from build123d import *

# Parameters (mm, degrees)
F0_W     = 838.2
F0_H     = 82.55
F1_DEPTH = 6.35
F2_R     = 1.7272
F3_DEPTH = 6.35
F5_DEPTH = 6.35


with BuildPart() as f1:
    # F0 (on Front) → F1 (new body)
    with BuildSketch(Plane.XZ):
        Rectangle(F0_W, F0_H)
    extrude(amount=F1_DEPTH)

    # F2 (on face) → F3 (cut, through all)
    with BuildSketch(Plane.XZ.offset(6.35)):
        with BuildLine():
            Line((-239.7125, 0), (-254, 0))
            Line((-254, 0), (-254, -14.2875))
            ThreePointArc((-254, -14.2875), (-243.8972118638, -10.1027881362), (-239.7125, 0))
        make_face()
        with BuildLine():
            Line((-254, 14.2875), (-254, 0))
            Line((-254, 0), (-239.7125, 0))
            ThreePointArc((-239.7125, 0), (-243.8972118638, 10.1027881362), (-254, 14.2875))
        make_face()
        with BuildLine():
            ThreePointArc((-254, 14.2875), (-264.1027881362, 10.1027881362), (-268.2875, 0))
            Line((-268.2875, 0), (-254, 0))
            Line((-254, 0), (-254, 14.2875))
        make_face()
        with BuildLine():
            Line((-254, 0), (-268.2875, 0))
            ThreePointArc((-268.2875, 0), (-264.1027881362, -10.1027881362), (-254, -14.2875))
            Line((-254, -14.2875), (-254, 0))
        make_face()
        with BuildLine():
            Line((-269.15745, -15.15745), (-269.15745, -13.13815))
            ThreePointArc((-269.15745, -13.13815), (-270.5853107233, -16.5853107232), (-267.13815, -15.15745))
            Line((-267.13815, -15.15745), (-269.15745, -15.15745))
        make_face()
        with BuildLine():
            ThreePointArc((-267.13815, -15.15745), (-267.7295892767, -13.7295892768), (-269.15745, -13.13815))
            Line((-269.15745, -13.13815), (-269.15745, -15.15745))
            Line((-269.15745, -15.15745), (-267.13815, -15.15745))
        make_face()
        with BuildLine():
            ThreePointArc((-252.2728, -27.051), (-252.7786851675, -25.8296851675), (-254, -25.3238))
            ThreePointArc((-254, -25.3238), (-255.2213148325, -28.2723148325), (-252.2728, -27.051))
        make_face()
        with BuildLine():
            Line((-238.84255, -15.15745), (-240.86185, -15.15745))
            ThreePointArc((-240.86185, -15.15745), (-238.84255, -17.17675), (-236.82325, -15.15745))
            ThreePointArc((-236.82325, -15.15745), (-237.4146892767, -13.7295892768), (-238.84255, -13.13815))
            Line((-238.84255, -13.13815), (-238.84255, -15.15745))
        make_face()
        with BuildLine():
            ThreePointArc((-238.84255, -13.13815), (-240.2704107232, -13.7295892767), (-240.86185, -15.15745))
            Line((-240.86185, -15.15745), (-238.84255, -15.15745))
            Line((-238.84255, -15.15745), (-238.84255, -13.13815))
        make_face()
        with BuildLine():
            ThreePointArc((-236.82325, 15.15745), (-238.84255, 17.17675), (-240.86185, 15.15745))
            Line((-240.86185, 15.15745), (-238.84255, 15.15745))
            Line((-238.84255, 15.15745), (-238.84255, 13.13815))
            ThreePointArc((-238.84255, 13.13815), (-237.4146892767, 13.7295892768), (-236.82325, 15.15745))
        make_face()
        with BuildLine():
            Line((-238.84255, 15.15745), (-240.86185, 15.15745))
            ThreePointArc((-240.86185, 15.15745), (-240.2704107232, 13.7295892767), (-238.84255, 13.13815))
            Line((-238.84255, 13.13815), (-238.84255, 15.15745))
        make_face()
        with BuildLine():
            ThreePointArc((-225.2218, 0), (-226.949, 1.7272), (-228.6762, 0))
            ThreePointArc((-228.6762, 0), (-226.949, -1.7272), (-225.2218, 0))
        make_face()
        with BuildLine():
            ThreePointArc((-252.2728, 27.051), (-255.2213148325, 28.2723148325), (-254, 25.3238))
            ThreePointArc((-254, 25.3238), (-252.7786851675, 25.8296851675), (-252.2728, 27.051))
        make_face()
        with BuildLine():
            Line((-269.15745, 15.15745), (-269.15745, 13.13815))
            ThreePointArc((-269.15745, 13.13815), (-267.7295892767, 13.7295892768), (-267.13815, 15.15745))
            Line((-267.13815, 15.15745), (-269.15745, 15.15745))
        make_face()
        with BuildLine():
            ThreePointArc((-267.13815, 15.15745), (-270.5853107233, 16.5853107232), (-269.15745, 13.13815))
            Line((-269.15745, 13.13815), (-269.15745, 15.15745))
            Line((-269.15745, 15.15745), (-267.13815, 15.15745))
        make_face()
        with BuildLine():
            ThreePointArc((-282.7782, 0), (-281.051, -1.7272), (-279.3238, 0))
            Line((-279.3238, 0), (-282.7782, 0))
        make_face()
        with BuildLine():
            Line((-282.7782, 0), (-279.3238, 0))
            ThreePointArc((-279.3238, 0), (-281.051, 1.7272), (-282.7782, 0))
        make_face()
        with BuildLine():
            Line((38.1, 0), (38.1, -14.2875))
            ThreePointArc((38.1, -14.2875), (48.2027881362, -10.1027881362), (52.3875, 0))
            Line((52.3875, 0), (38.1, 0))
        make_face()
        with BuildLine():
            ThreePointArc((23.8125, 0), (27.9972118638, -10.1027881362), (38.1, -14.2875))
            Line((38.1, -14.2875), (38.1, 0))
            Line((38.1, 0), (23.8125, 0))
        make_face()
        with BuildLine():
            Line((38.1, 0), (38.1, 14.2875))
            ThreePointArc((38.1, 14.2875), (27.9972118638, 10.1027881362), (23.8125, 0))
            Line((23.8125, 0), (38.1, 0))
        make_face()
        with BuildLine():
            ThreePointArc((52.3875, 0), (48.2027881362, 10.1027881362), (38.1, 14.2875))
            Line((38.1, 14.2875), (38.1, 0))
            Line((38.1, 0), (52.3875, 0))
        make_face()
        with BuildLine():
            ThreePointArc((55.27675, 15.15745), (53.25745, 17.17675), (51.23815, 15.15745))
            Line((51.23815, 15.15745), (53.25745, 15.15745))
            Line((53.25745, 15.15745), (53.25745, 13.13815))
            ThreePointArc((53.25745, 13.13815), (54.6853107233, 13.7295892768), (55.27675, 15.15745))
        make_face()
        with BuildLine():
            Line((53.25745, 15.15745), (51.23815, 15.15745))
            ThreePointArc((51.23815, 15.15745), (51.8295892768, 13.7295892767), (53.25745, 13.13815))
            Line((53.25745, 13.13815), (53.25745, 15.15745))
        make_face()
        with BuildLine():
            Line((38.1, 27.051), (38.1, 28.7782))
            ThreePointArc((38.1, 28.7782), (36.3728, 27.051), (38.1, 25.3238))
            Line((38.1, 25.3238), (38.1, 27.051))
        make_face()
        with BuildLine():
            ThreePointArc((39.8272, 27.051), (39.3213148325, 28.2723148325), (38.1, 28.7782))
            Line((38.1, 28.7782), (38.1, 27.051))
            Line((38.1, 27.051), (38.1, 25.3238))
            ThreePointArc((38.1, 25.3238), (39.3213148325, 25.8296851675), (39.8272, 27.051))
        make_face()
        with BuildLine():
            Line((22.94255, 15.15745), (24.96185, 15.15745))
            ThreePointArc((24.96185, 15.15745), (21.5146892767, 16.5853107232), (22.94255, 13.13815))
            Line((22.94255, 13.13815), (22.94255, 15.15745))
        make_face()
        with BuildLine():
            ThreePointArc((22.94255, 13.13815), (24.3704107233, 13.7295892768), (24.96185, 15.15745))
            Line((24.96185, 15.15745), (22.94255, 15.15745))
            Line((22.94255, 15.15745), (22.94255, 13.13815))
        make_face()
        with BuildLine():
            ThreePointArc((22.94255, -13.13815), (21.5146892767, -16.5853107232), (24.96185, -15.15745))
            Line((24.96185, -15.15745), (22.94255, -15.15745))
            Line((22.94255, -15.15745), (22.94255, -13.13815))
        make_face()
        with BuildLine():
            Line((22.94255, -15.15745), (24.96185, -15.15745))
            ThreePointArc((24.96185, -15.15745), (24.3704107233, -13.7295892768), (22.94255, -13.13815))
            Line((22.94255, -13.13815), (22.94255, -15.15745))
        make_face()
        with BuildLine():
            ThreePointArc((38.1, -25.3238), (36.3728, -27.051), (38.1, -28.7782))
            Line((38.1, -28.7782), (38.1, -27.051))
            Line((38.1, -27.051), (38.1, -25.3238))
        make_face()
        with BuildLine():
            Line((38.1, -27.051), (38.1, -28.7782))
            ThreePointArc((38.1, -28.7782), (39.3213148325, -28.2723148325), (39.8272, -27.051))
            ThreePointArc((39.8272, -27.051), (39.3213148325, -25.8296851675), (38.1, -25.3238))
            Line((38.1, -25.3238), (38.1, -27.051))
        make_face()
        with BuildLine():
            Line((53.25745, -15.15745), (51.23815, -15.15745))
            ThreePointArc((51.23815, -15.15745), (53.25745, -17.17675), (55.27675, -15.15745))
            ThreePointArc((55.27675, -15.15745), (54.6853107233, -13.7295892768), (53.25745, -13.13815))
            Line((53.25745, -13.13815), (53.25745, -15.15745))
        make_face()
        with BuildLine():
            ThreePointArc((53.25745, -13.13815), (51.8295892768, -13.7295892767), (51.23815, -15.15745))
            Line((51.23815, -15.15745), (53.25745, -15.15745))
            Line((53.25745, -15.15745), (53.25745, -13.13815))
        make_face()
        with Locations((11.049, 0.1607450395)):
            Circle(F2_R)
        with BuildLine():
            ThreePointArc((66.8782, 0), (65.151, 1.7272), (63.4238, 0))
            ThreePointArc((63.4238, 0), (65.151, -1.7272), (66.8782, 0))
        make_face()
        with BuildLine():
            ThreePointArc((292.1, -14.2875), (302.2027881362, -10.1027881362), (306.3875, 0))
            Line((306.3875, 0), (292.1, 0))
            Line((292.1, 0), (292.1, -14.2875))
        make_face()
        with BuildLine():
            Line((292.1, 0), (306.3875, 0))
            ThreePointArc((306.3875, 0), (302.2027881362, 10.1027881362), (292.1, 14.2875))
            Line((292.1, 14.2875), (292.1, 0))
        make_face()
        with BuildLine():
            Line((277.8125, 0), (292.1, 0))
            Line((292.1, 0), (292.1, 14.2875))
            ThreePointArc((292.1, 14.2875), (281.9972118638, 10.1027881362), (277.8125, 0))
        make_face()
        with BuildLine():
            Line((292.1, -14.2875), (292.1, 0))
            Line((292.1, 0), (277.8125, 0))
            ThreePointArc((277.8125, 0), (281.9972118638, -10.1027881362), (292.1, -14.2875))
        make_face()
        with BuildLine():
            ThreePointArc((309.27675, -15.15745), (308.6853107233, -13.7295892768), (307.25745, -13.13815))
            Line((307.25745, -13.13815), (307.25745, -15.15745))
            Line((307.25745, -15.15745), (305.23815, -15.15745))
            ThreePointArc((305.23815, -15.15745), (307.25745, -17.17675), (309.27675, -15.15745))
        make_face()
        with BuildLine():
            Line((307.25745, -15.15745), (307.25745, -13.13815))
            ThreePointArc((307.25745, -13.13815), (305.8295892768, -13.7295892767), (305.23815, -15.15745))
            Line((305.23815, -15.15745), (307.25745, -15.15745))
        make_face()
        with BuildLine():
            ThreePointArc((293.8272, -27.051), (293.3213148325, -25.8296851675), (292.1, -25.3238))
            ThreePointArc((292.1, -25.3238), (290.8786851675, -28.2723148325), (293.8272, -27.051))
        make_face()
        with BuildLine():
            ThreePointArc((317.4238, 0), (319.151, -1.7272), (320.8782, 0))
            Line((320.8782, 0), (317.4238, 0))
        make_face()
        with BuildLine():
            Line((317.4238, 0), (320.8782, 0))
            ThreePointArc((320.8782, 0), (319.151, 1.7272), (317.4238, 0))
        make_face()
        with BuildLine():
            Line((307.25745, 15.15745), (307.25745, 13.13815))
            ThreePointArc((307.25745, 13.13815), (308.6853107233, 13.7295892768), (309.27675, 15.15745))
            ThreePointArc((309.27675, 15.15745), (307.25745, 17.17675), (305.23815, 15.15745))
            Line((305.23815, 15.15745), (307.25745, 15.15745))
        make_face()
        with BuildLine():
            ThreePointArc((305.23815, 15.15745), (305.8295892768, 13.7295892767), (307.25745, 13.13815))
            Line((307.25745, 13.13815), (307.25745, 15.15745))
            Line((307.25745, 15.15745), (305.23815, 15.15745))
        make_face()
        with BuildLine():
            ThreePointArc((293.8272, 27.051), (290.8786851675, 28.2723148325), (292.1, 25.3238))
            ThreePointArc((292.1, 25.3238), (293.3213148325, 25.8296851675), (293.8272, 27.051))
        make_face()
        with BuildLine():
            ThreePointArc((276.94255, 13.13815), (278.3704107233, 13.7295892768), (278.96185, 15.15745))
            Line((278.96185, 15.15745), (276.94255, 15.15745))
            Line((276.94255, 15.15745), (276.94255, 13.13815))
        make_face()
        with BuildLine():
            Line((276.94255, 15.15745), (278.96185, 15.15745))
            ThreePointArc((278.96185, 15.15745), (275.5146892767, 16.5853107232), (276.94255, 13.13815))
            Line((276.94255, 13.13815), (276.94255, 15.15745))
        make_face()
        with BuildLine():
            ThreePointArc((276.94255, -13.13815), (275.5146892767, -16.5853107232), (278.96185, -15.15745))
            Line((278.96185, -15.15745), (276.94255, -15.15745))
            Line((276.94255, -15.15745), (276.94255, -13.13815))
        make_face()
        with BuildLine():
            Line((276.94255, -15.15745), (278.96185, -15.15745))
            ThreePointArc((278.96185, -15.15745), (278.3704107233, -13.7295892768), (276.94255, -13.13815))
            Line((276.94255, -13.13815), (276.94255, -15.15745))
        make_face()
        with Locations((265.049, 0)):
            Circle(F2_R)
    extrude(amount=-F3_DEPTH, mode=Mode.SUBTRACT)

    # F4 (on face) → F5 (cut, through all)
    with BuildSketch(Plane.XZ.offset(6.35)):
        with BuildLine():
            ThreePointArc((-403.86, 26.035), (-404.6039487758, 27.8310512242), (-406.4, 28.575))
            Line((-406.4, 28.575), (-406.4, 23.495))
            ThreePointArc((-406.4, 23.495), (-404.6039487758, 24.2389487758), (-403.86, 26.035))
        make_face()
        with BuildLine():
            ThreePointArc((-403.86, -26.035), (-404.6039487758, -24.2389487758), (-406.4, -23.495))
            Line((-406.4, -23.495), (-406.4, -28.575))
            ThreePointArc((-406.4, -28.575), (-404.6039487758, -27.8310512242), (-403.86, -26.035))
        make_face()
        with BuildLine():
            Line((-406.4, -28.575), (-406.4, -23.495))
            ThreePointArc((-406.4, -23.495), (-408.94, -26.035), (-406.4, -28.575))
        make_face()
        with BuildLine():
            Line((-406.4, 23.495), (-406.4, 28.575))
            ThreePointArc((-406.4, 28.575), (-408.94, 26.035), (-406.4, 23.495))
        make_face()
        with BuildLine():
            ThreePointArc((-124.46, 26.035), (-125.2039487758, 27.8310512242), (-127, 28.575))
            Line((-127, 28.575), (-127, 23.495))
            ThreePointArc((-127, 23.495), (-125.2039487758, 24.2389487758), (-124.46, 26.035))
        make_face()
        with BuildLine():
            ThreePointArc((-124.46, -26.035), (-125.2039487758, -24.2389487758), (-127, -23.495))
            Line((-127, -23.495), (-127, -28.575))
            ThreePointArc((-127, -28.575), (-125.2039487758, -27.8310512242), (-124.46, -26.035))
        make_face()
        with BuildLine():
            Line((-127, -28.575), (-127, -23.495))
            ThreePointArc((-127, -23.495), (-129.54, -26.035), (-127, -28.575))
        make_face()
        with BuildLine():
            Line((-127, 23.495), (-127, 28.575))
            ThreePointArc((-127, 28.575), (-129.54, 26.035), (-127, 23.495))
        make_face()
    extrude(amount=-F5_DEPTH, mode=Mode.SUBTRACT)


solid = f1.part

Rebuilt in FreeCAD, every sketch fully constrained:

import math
import FreeCAD as App
import Part
import Sketcher
Q = App.Units.Quantity

doc = App.newDocument("Part")
body = doc.addObject("PartDesign::Body", "Body")

sketch1 = body.newObject("Sketcher::SketchObject", "Sketch")
sketch1.AttachmentSupport = (doc.getObject("XZ_Plane"), [""])
sketch1.MapMode = "FlatFace"
sketch1.addGeometry([
    Part.LineSegment(App.Vector(-419, 41, 0), App.Vector(-419, -41, 0)),
    Part.LineSegment(App.Vector(-419, -41, 0), App.Vector(419, -41, 0)),
    Part.LineSegment(App.Vector(419, -41, 0), App.Vector(419, 41, 0)),
    Part.LineSegment(App.Vector(419, 41, 0), App.Vector(-419, 41, 0)),
], False)
sketch1.addConstraint([
    Sketcher.Constraint("Coincident", 0, 2, 1, 1),
    Sketcher.Constraint("Coincident", 1, 2, 2, 1),
    Sketcher.Constraint("Coincident", 2, 2, 3, 1),
    Sketcher.Constraint("Coincident", 3, 2, 0, 1),
    Sketcher.Constraint("Vertical", 0),
    Sketcher.Constraint("Horizontal", 1),
    Sketcher.Constraint("Vertical", 2),
    Sketcher.Constraint("Horizontal", 3),
    Sketcher.Constraint("Symmetric", 0, 2, 2, 2, -1, 1),
    Sketcher.Constraint("DistanceX", 1, 1, 1, 2, Q("33 in")),
    Sketcher.Constraint("DistanceY", 0, 2, 0, 1, Q("3.25 in")),
])
pad1 = body.newObject("PartDesign::Pad", "Pad")
pad1.Profile = sketch1
pad1.Length = Q("0.25 in")

sketch2 = body.newObject("Sketcher::SketchObject", "Sketch001")
sketch2.AttachmentSupport = (doc.getObject("XZ_Plane"), [""])
sketch2.MapMode = "FlatFace"
sketch2.AttachmentOffset = App.Placement(App.Vector(0, 0, 0.25 * 25.4), App.Rotation())
sketch2.addGeometry([
    Part.ArcOfCircle(Part.Circle(App.Vector(-254, 0, 0), App.Vector(0, 0, 1), 14.3), math.radians(-90), math.radians(0)),
    Part.ArcOfCircle(Part.Circle(App.Vector(-254, 0, 0), App.Vector(0, 0, 1), 14.3), math.radians(0), math.radians(90)),
    Part.ArcOfCircle(Part.Circle(App.Vector(-254, 0, 0), App.Vector(0, 0, 1), 14.3), math.radians(90), math.radians(180)),
    Part.ArcOfCircle(Part.Circle(App.Vector(-254, 0, 0), App.Vector(0, 0, 1), 14.3), math.radians(180), math.radians(270)),
    Part.Circle(App.Vector(-269.2, -15.2, 0), App.Vector(0, 0, 1), 2),
    Part.ArcOfCircle(Part.Circle(App.Vector(-254, -27.1, 0), App.Vector(0, 0, 1), 1.7), math.radians(0), math.radians(90)),
    Part.ArcOfCircle(Part.Circle(App.Vector(-254, -27.1, 0), App.Vector(0, 0, 1), 1.7), math.radians(90), math.radians(360)),
    Part.Circle(App.Vector(-238.8, -15.2, 0), App.Vector(0, 0, 1), 2),
    Part.Circle(App.Vector(-238.8, 15.2, 0), App.Vector(0, 0, 1), 2),
    Part.Circle(App.Vector(-226.9, 0, 0), App.Vector(0, 0, 1), 1.7),
    Part.ArcOfCircle(Part.Circle(App.Vector(-254, 27.1, 0), App.Vector(0, 0, 1), 1.7), math.radians(0), math.radians(270)),
    Part.ArcOfCircle(Part.Circle(App.Vector(-254, 27.1, 0), App.Vector(0, 0, 1), 1.7), math.radians(-90), math.radians(0)),
    Part.Circle(App.Vector(-269.2, 15.2, 0), App.Vector(0, 0, 1), 2),
    Part.Circle(App.Vector(-281.1, 0, 0), App.Vector(0, 0, 1), 1.7),
    Part.ArcOfCircle(Part.Circle(App.Vector(38.1, 0, 0), App.Vector(0, 0, 1), 14.3), math.radians(-90), math.radians(0)),
    Part.ArcOfCircle(Part.Circle(App.Vector(38.1, 0, 0), App.Vector(0, 0, 1), 14.3), math.radians(0), math.radians(90)),
    Part.ArcOfCircle(Part.Circle(App.Vector(38.1, 0, 0), App.Vector(0, 0, 1), 14.3), math.radians(90), math.radians(180)),
    Part.ArcOfCircle(Part.Circle(App.Vector(38.1, 0, 0), App.Vector(0, 0, 1), 14.3), math.radians(180), math.radians(270)),
    Part.Circle(App.Vector(53.3, 15.2, 0), App.Vector(0, 0, 1), 2),
    Part.ArcOfCircle(Part.Circle(App.Vector(38.1, 27.1, 0), App.Vector(0, 0, 1), 1.7), math.radians(90), math.radians(270)),
    Part.ArcOfCircle(Part.Circle(App.Vector(38.1, 27.1, 0), App.Vector(0, 0, 1), 1.7), math.radians(-90), math.radians(0)),
    Part.ArcOfCircle(Part.Circle(App.Vector(38.1, 27.1, 0), App.Vector(0, 0, 1), 1.7), math.radians(0), math.radians(90)),
    Part.Circle(App.Vector(22.9, 15.2, 0), App.Vector(0, 0, 1), 2),
    Part.Circle(App.Vector(22.9, -15.2, 0), App.Vector(0, 0, 1), 2),
    Part.ArcOfCircle(Part.Circle(App.Vector(38.1, -27.1, 0), App.Vector(0, 0, 1), 1.7), math.radians(90), math.radians(270)),
    Part.ArcOfCircle(Part.Circle(App.Vector(38.1, -27.1, 0), App.Vector(0, 0, 1), 1.7), math.radians(-90), math.radians(0)),
    Part.ArcOfCircle(Part.Circle(App.Vector(38.1, -27.1, 0), App.Vector(0, 0, 1), 1.7), math.radians(0), math.radians(90)),
    Part.Circle(App.Vector(53.3, -15.2, 0), App.Vector(0, 0, 1), 2),
    Part.Circle(App.Vector(11, 0.2, 0), App.Vector(0, 0, 1), 1.7),
    Part.Circle(App.Vector(65.2, 0, 0), App.Vector(0, 0, 1), 1.7),
    Part.ArcOfCircle(Part.Circle(App.Vector(292.1, 0, 0), App.Vector(0, 0, 1), 14.3), math.radians(-90), math.radians(0)),
    Part.ArcOfCircle(Part.Circle(App.Vector(292.1, 0, 0), App.Vector(0, 0, 1), 14.3), math.radians(0), math.radians(90)),
    Part.ArcOfCircle(Part.Circle(App.Vector(292.1, 0, 0), App.Vector(0, 0, 1), 14.3), math.radians(90), math.radians(180)),
    Part.ArcOfCircle(Part.Circle(App.Vector(292.1, 0, 0), App.Vector(0, 0, 1), 14.3), math.radians(180), math.radians(270)),
    Part.Circle(App.Vector(307.3, -15.2, 0), App.Vector(0, 0, 1), 2),
    Part.ArcOfCircle(Part.Circle(App.Vector(292.1, -27.1, 0), App.Vector(0, 0, 1), 1.7), math.radians(0), math.radians(90)),
    Part.ArcOfCircle(Part.Circle(App.Vector(292.1, -27.1, 0), App.Vector(0, 0, 1), 1.7), math.radians(90), math.radians(360)),
    Part.Circle(App.Vector(319.2, 0, 0), App.Vector(0, 0, 1), 1.7),
    Part.Circle(App.Vector(307.3, 15.2, 0), App.Vector(0, 0, 1), 2),
    Part.ArcOfCircle(Part.Circle(App.Vector(292.1, 27.1, 0), App.Vector(0, 0, 1), 1.7), math.radians(0), math.radians(270)),
    Part.ArcOfCircle(Part.Circle(App.Vector(292.1, 27.1, 0), App.Vector(0, 0, 1), 1.7), math.radians(-90), math.radians(0)),
    Part.Circle(App.Vector(276.9, 15.2, 0), App.Vector(0, 0, 1), 2),
    Part.Circle(App.Vector(276.9, -15.2, 0), App.Vector(0, 0, 1), 2),
    Part.Circle(App.Vector(265, 0, 0), App.Vector(0, 0, 1), 1.7),
], False)
sketch2.addConstraint([
    Sketcher.Constraint("Tangent", 0, 2, 1, 1),
    Sketcher.Constraint("Tangent", 1, 2, 2, 1),
    Sketcher.Constraint("Tangent", 2, 2, 3, 1),
    Sketcher.Constraint("Tangent", 3, 2, 0, 1),
    Sketcher.Constraint("Tangent", 5, 1, 6, 2),
    Sketcher.Constraint("Coincident", 6, 1, 5, 2),
    Sketcher.Constraint("Tangent", 10, 1, 11, 2),
    Sketcher.Constraint("Coincident", 11, 1, 10, 2),
    Sketcher.Constraint("Tangent", 14, 2, 15, 1),
    Sketcher.Constraint("Tangent", 15, 2, 16, 1),
    Sketcher.Constraint("Tangent", 16, 2, 17, 1),
    Sketcher.Constraint("Tangent", 17, 2, 14, 1),
    Sketcher.Constraint("Tangent", 19, 2, 20, 1),
    Sketcher.Constraint("Tangent", 20, 2, 21, 1),
    Sketcher.Constraint("Tangent", 21, 2, 19, 1),
    Sketcher.Constraint("Tangent", 24, 2, 25, 1),
    Sketcher.Constraint("Tangent", 25, 2, 26, 1),
    Sketcher.Constraint("Tangent", 26, 2, 24, 1),
    Sketcher.Constraint("Tangent", 30, 2, 31, 1),
    Sketcher.Constraint("Tangent", 31, 2, 32, 1),
    Sketcher.Constraint("Tangent", 32, 2, 33, 1),
    Sketcher.Constraint("Tangent", 33, 2, 30, 1),
    Sketcher.Constraint("Tangent", 35, 1, 36, 2),
    Sketcher.Constraint("Coincident", 36, 1, 35, 2),
    Sketcher.Constraint("Tangent", 39, 1, 40, 2),
    Sketcher.Constraint("Coincident", 40, 1, 39, 2),
    Sketcher.Constraint("Equal", 0, 1),
    Sketcher.Constraint("Equal", 4, 7),
    Sketcher.Constraint("Equal", 7, 8),
    Sketcher.Constraint("Equal", 6, 9),
    Sketcher.Constraint("Equal", 9, 10),
    Sketcher.Constraint("Equal", 8, 12),
    Sketcher.Constraint("Equal", 11, 13),
    Sketcher.Constraint("Equal", 3, 14),
    Sketcher.Constraint("Equal", 14, 15),
    Sketcher.Constraint("Equal", 12, 18),
    Sketcher.Constraint("Equal", 13, 19),
    Sketcher.Constraint("Equal", 18, 22),
    Sketcher.Constraint("Equal", 22, 23),
    Sketcher.Constraint("Equal", 21, 24),
    Sketcher.Constraint("Equal", 23, 27),
    Sketcher.Constraint("Equal", 26, 28),
    Sketcher.Constraint("Equal", 28, 29),
    Sketcher.Constraint("Equal", 17, 30),
    Sketcher.Constraint("Equal", 30, 31),
    Sketcher.Constraint("Equal", 27, 34),
    Sketcher.Constraint("Equal", 29, 35),
    Sketcher.Constraint("Equal", 36, 37),
    Sketcher.Constraint("Equal", 34, 38),
    Sketcher.Constraint("Equal", 37, 39),
    Sketcher.Constraint("Equal", 38, 41),
    Sketcher.Constraint("Equal", 41, 42),
    Sketcher.Constraint("Equal", 40, 43),
    Sketcher.Constraint("Symmetric", 7, 3, 8, 3, -1),
    Sketcher.Constraint("Symmetric", 5, 3, 10, 3, -1),
    Sketcher.Constraint("Symmetric", 4, 3, 12, 3, -1),
    Sketcher.Constraint("Symmetric", 22, 3, 23, 3, -1),
    Sketcher.Constraint("Symmetric", 19, 3, 24, 3, -1),
    Sketcher.Constraint("Symmetric", 18, 3, 27, 3, -1),
    Sketcher.Constraint("Symmetric", 34, 3, 38, 3, -1),
    Sketcher.Constraint("Symmetric", 35, 3, 39, 3, -1),
    Sketcher.Constraint("Symmetric", 41, 3, 42, 3, -1),
    Sketcher.Constraint("Symmetric", 1, 2, 3, 2, -1),
    Sketcher.Constraint("Symmetric", 15, 2, 17, 2, -1),
    Sketcher.Constraint("Symmetric", 31, 2, 33, 2, -1),
    Sketcher.Constraint("PointOnObject", 9, 3, -1),
    Sketcher.Constraint("PointOnObject", 13, 3, -1),
    Sketcher.Constraint("PointOnObject", 29, 3, -1),
    Sketcher.Constraint("PointOnObject", 37, 3, -1),
    Sketcher.Constraint("PointOnObject", 43, 3, -1),
    Sketcher.Constraint("PointOnObject", 0, 2, -1),
    Sketcher.Constraint("PointOnObject", 2, 2, -1),
    Sketcher.Constraint("PointOnObject", 14, 2, -1),
    Sketcher.Constraint("PointOnObject", 16, 2, -1),
    Sketcher.Constraint("PointOnObject", 30, 2, -1),
    Sketcher.Constraint("PointOnObject", 32, 2, -1),
    Sketcher.Constraint("Horizontal", 4, 3, 7, 3),
    Sketcher.Constraint("Horizontal", 12, 3, 18, 3),
    Sketcher.Constraint("Horizontal", 11, 3, 19, 3),
    Sketcher.Constraint("Horizontal", 18, 3, 22, 3),
    Sketcher.Constraint("Horizontal", 27, 3, 34, 3),
    Sketcher.Constraint("Horizontal", 26, 3, 35, 3),
    Sketcher.Constraint("Horizontal", 38, 3, 41, 3),
    Sketcher.Constraint("Horizontal", 36, 3, 5, 1),
    Sketcher.Constraint("Horizontal", 40, 3, 10, 1),
    Sketcher.Constraint("Horizontal", 10, 1, 20, 2),
    Sketcher.Constraint("Horizontal", 5, 1, 25, 2),
    Sketcher.Constraint("Horizontal", 25, 2, 35, 1),
    Sketcher.Constraint("Horizontal", 20, 2, 39, 1),
    Sketcher.Constraint("Vertical", 3, 3, 5, 3),
    Sketcher.Constraint("Vertical", 17, 3, 19, 3),
    Sketcher.Constraint("Vertical", 33, 3, 35, 3),
    Sketcher.Constraint("Vertical", 11, 3, 1, 2),
    Sketcher.Constraint("Vertical", 3, 2, 6, 1),
    Sketcher.Constraint("Vertical", 6, 1, 11, 1),
    Sketcher.Constraint("Vertical", 26, 3, 15, 2),
    Sketcher.Constraint("Vertical", 17, 2, 19, 2),
    Sketcher.Constraint("Vertical", 19, 2, 21, 2),
    Sketcher.Constraint("Vertical", 21, 2, 24, 2),
    Sketcher.Constraint("Vertical", 24, 2, 26, 2),
    Sketcher.Constraint("Vertical", 40, 3, 31, 2),
    Sketcher.Constraint("Vertical", 33, 2, 36, 1),
    Sketcher.Constraint("Vertical", 36, 1, 40, 1),
    Sketcher.Constraint("Diameter", 4, Q("0.159 in")),
    Sketcher.Constraint("Diameter", 9, Q("0.136 in")),
    Sketcher.Constraint("DistanceX", 0, 3, -1, 1, Q("10 in")),
    Sketcher.Constraint("Radius", 0, Q("0.5625 in")),
    Sketcher.Constraint("DistanceX", -1, 1, 14, 3, Q("1.5 in")),
    Sketcher.Constraint("DistanceX", -1, 1, 30, 3, Q("11.5 in")),
    Sketcher.Constraint("DistanceY", 5, 3, -1, 1, Q("1.065 in")),
    Sketcher.Constraint("DistanceX", 9, 3, -1, 1, Q("8.935 in")),
    Sketcher.Constraint("DistanceX", 13, 3, -1, 1, Q("11.065 in")),
    Sketcher.Constraint("DistanceX", -1, 1, 28, 3, Q("0.435 in")),
    Sketcher.Constraint("DistanceX", -1, 1, 29, 3, Q("2.565 in")),
    Sketcher.Constraint("DistanceX", -1, 1, 37, 3, Q("12.565 in")),
    Sketcher.Constraint("DistanceX", -1, 1, 43, 3, Q("10.435 in")),
    Sketcher.Constraint("DistanceX", 4, 3, -1, 1, Q("269.15745 mm")),
    Sketcher.Constraint("DistanceY", 4, 3, -1, 1, Q("15.15745 mm")),
    Sketcher.Constraint("DistanceX", 7, 3, -1, 1, Q("238.84255 mm")),
    Sketcher.Constraint("DistanceX", -1, 1, 18, 3, Q("53.25745 mm")),
    Sketcher.Constraint("DistanceX", -1, 1, 22, 3, Q("22.94255 mm")),
    Sketcher.Constraint("DistanceX", -1, 1, 34, 3, Q("307.25745 mm")),
    Sketcher.Constraint("DistanceX", -1, 1, 41, 3, Q("276.94255 mm")),
    Sketcher.Constraint("DistanceY", -1, 1, 28, 3, Q("0.160745 mm")),
])
pocket1 = body.newObject("PartDesign::Pocket", "Pocket")
pocket1.Profile = sketch2
pocket1.Type = "ThroughAll"

sketch3 = body.newObject("Sketcher::SketchObject", "Sketch002")
sketch3.AttachmentSupport = (doc.getObject("XZ_Plane"), [""])
sketch3.MapMode = "FlatFace"
sketch3.AttachmentOffset = App.Placement(App.Vector(0, 0, 0.25 * 25.4), App.Rotation())
sketch3.addGeometry([
    Part.ArcOfCircle(Part.Circle(App.Vector(-406.4, 26, 0), App.Vector(0, 0, 1), 2.5), math.radians(0), math.radians(90)),
    Part.ArcOfCircle(Part.Circle(App.Vector(-406.4, 26, 0), App.Vector(0, 0, 1), 2.5), math.radians(90), math.radians(270)),
    Part.ArcOfCircle(Part.Circle(App.Vector(-406.4, 26, 0), App.Vector(0, 0, 1), 2.5), math.radians(-90), math.radians(0)),
    Part.ArcOfCircle(Part.Circle(App.Vector(-406.4, -26, 0), App.Vector(0, 0, 1), 2.5), math.radians(0), math.radians(90)),
    Part.ArcOfCircle(Part.Circle(App.Vector(-406.4, -26, 0), App.Vector(0, 0, 1), 2.5), math.radians(90), math.radians(270)),
    Part.ArcOfCircle(Part.Circle(App.Vector(-406.4, -26, 0), App.Vector(0, 0, 1), 2.5), math.radians(-90), math.radians(0)),
    Part.ArcOfCircle(Part.Circle(App.Vector(-127, 26, 0), App.Vector(0, 0, 1), 2.5), math.radians(0), math.radians(90)),
    Part.ArcOfCircle(Part.Circle(App.Vector(-127, 26, 0), App.Vector(0, 0, 1), 2.5), math.radians(90), math.radians(270)),
    Part.ArcOfCircle(Part.Circle(App.Vector(-127, 26, 0), App.Vector(0, 0, 1), 2.5), math.radians(-90), math.radians(0)),
    Part.ArcOfCircle(Part.Circle(App.Vector(-127, -26, 0), App.Vector(0, 0, 1), 2.5), math.radians(0), math.radians(90)),
    Part.ArcOfCircle(Part.Circle(App.Vector(-127, -26, 0), App.Vector(0, 0, 1), 2.5), math.radians(90), math.radians(270)),
    Part.ArcOfCircle(Part.Circle(App.Vector(-127, -26, 0), App.Vector(0, 0, 1), 2.5), math.radians(-90), math.radians(0)),
], False)
sketch3.addConstraint([
    Sketcher.Constraint("Tangent", 0, 2, 1, 1),
    Sketcher.Constraint("Tangent", 1, 2, 2, 1),
    Sketcher.Constraint("Tangent", 2, 2, 0, 1),
    Sketcher.Constraint("Tangent", 3, 2, 4, 1),
    Sketcher.Constraint("Tangent", 4, 2, 5, 1),
    Sketcher.Constraint("Tangent", 5, 2, 3, 1),
    Sketcher.Constraint("Tangent", 6, 2, 7, 1),
    Sketcher.Constraint("Tangent", 7, 2, 8, 1),
    Sketcher.Constraint("Tangent", 8, 2, 6, 1),
    Sketcher.Constraint("Tangent", 9, 2, 10, 1),
    Sketcher.Constraint("Tangent", 10, 2, 11, 1),
    Sketcher.Constraint("Tangent", 11, 2, 9, 1),
    Sketcher.Constraint("Equal", 2, 3),
    Sketcher.Constraint("Equal", 5, 6),
    Sketcher.Constraint("Equal", 8, 9),
    Sketcher.Constraint("Symmetric", 0, 3, 3, 3, -1),
    Sketcher.Constraint("Symmetric", 6, 3, 9, 3, -1),
    Sketcher.Constraint("Horizontal", 2, 3, 6, 3),
    Sketcher.Constraint("Horizontal", 8, 3, 2, 2),
    Sketcher.Constraint("Horizontal", 11, 3, 5, 2),
    Sketcher.Constraint("Horizontal", 2, 2, 8, 2),
    Sketcher.Constraint("Horizontal", 5, 2, 11, 2),
    Sketcher.Constraint("Vertical", 5, 3, 0, 2),
    Sketcher.Constraint("Vertical", 0, 2, 1, 2),
    Sketcher.Constraint("Vertical", 1, 2, 3, 2),
    Sketcher.Constraint("Vertical", 3, 2, 4, 2),
    Sketcher.Constraint("Vertical", 11, 3, 6, 2),
    Sketcher.Constraint("Vertical", 6, 2, 7, 2),
    Sketcher.Constraint("Vertical", 7, 2, 9, 2),
    Sketcher.Constraint("Vertical", 9, 2, 10, 2),
    Sketcher.Constraint("Radius", 0, Q("0.1 in")),
    Sketcher.Constraint("DistanceX", 0, 3, -1, 1, Q("16 in")),
    Sketcher.Constraint("DistanceX", 6, 3, -1, 1, Q("5 in")),
    Sketcher.Constraint("DistanceY", 3, 3, 0, 3, Q("2.05 in")),
])
pocket2 = body.newObject("PartDesign::Pocket", "Pocket001")
pocket2.Profile = sketch3
pocket2.Type = "ThroughAll"

doc.recompute()
